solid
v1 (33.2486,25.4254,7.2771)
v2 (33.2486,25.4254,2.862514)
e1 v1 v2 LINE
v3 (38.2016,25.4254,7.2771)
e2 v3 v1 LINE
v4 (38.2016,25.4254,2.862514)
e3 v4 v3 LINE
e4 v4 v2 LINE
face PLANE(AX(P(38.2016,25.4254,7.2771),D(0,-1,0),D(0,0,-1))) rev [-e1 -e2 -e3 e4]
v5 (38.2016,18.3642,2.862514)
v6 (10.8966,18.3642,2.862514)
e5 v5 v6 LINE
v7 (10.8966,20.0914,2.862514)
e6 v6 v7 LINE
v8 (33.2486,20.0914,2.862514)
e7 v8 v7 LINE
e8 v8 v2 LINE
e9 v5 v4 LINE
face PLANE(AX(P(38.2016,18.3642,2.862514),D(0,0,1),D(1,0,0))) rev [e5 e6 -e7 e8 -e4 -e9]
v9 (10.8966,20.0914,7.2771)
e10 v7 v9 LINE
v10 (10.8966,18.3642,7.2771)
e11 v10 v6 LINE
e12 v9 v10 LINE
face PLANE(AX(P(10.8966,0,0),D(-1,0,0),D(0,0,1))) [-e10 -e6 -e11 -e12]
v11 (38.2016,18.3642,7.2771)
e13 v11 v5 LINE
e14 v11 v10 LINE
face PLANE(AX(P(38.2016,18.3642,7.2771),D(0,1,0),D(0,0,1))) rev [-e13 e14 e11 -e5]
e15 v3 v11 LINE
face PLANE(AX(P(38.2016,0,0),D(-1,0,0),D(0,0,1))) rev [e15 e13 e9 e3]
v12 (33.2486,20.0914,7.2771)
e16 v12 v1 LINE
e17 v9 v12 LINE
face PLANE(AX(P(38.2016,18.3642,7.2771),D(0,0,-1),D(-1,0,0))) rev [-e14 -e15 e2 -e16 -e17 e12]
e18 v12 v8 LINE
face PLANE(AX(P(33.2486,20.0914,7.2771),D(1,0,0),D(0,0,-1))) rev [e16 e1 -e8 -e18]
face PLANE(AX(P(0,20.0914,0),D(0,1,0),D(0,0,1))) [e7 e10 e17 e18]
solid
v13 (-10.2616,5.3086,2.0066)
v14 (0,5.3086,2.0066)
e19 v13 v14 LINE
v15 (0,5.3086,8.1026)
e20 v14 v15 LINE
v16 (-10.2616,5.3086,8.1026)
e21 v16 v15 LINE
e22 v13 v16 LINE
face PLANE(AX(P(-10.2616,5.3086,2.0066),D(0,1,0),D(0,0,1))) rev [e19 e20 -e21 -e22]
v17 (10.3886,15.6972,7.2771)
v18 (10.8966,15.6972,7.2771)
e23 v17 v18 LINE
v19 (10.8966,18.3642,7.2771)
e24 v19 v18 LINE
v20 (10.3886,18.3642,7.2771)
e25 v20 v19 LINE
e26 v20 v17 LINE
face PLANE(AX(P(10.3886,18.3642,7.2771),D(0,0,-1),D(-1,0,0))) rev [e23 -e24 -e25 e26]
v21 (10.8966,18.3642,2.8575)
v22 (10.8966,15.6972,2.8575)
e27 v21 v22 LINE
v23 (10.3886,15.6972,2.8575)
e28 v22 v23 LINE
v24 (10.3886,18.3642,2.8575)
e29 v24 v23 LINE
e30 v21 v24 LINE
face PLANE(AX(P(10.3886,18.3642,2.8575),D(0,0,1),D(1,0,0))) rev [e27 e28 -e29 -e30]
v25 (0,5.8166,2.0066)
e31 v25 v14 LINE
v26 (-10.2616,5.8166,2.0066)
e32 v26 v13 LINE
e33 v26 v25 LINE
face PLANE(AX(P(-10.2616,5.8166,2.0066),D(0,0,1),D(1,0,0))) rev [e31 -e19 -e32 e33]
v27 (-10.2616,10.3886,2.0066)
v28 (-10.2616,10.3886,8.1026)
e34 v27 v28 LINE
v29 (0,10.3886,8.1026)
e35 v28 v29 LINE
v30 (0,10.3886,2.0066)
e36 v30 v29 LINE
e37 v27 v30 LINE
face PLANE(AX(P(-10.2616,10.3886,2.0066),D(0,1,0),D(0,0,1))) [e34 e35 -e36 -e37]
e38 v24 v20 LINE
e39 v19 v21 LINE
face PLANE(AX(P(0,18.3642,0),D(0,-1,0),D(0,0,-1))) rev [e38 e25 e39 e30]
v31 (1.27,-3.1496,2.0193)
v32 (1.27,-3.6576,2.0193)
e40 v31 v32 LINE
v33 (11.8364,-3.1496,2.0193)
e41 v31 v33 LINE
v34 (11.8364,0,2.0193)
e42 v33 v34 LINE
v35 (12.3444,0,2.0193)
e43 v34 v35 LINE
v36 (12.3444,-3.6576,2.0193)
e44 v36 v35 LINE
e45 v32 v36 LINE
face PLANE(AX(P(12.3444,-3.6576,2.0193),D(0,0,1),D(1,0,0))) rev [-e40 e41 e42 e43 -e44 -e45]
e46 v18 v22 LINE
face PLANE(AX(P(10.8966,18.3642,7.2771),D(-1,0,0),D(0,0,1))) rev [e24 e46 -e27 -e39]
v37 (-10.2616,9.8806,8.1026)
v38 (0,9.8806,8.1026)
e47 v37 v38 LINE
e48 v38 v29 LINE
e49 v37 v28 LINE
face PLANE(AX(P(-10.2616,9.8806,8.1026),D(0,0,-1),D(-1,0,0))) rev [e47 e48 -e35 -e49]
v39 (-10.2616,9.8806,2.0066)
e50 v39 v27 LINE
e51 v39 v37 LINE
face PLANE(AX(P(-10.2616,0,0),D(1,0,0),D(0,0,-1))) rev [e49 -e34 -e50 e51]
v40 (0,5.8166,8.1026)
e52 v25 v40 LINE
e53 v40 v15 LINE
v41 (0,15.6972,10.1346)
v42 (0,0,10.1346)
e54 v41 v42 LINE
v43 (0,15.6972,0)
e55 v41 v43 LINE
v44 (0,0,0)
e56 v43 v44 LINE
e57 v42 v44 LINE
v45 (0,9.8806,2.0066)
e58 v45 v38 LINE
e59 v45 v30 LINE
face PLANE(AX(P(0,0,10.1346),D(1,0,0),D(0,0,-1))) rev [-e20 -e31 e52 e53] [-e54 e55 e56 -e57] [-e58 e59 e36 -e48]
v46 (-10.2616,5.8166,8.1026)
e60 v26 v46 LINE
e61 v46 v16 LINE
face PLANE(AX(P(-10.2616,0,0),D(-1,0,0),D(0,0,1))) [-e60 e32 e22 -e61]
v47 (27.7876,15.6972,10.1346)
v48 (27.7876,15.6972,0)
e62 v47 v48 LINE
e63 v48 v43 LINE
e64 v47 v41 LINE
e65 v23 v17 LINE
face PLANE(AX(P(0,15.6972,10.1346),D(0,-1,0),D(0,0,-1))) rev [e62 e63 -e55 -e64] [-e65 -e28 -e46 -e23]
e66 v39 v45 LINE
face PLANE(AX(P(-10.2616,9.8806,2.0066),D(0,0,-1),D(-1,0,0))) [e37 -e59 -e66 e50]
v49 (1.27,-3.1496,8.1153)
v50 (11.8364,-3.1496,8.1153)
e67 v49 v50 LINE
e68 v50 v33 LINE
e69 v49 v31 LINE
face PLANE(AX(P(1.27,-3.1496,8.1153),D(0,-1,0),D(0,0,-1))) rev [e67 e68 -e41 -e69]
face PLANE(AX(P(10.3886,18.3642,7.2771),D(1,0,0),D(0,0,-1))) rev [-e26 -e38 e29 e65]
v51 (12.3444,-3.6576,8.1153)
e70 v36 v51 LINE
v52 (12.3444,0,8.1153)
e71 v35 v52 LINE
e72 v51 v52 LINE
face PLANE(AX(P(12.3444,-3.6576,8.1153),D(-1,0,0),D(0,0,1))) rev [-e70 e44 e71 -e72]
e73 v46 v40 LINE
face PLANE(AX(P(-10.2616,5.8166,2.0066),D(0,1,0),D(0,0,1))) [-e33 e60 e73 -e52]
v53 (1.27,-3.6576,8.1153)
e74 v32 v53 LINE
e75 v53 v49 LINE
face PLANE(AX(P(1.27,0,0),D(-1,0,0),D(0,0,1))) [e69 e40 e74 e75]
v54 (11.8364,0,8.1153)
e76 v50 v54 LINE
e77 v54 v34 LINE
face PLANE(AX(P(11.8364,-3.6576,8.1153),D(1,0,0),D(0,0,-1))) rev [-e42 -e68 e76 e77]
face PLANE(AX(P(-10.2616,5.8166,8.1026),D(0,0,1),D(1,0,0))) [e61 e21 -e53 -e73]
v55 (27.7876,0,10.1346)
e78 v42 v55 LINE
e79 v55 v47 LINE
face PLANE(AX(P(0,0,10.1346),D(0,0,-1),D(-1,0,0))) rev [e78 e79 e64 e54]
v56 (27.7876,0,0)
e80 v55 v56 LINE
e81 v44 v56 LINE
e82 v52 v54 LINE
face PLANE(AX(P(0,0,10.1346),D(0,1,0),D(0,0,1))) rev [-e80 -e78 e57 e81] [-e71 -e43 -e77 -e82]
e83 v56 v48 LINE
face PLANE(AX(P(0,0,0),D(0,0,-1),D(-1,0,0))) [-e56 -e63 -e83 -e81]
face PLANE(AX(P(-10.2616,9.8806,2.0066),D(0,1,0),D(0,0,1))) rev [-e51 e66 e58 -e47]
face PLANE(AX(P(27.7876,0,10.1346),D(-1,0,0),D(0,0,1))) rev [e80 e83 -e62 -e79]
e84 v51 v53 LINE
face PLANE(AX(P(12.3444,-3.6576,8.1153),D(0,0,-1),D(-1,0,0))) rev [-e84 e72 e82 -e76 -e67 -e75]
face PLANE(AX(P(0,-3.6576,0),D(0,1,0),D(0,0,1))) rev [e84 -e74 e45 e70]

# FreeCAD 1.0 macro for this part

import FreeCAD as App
import Part
import Sketcher
from FreeCAD import Vector
Q = App.Units.Quantity


def add_polygon(sketch, points):
    """Adds a closed chain of lines whose ends are joined by coincident constraints."""
    first, n = sketch.GeometryCount, len(points)
    for a, b in zip(points, points[1:] + points[:1]):
        sketch.addGeometry(Part.LineSegment(App.Vector(*a, 0), App.Vector(*b, 0)), False)
    for i in range(n):
        sketch.addConstraint(Sketcher.Constraint("Coincident", first + i, 2, first + (i + 1) % n, 1))

doc = App.newDocument("Part")
params = doc.addObject("Spreadsheet::Sheet", "Params")
for row, (alias, value) in enumerate([
    ("sketch1_width", "1.094 in"),
    ("sketch1_height", "0.618 in"),
    ("pad1_length", "0.399 in"),
    ("sketch2_width", "0.02 in"),
    ("sketch2_height", "0.24 in"),
    ("pad2_length", "0.404 in"),
    ("sketch3_width", "0.02 in"),
    ("sketch3_height", "0.174 in"),
    ("pad3_length", "0.105 in"),
    ("sketch4_width", "0.02 in"),
    ("sketch4_height", "0.24 in"),
    ("pad4_length", "0.144 in"),
    ("sketch5_width", "0.02 in"),
    ("sketch5_height", "0.24 in"),
    ("pad5_length", "0.416 in"),
    ("sketch6_width", "0.278 in"),
    ("pad6_length", "1.075 in"),
    ("sketch7_width", "0.88 in"),
    ("pocket1_length", "0.21 in"),
], start=1):
    params.set(f"A{row}", alias)
    params.set(f"B{row}", "=" + value)
    params.setAlias(f"B{row}", alias)

body = doc.addObject("PartDesign::Body", "Body")

sketch1 = body.newObject("Sketcher::SketchObject", "Sketch")
sketch1.AttachmentSupport = (doc.getObject("XY_Plane"), [""])
sketch1.MapMode = "FlatFace"
add_polygon(sketch1, [(0, 16), (0, 0), (28, 0), (28, 16)])
sketch1.addConstraint([
    Sketcher.Constraint("Vertical", 0),
    Sketcher.Constraint("Horizontal", 1),
    Sketcher.Constraint("Vertical", 2),
    Sketcher.Constraint("Horizontal", 3),
    Sketcher.Constraint("Coincident", 0, 2, -1, 1),
    Sketcher.Constraint("DistanceX", 1, 1, 1, 2, Q("1.094 in")),
    Sketcher.Constraint("DistanceY", 0, 2, 0, 1, Q("0.618 in")),
])
sketch1.setExpression("Constraints[9]", "Params.sketch1_width")
sketch1.setExpression("Constraints[10]", "Params.sketch1_height")
pad1 = body.newObject("PartDesign::Pad", "Pad")
pad1.Profile = sketch1
pad1.setExpression("Length", "Params.pad1_length")

sketch2 = body.newObject("Sketcher::SketchObject", "Sketch001")
sketch2.AttachmentSupport = (doc.getObject("YZ_Plane"), [""])
sketch2.MapMode = "FlatFace"
add_polygon(sketch2, [(10.4, 2), (9.9, 2), (9.9, 8.1), (10.4, 8.1)])
add_polygon(sketch2, [(5.8, 2), (5.3, 2), (5.3, 8.1), (5.8, 8.1)])
sketch2.addConstraint([
    Sketcher.Constraint("Horizontal", 0),
    Sketcher.Constraint("Vertical", 1),
    Sketcher.Constraint("Horizontal", 2),
    Sketcher.Constraint("Vertical", 3),
    Sketcher.Constraint("Horizontal", 4),
    Sketcher.Constraint("Vertical", 5),
    Sketcher.Constraint("Horizontal", 6),
    Sketcher.Constraint("Vertical", 7),
    Sketcher.Constraint("Horizontal", 3, 2, 4, 2),
    Sketcher.Constraint("Horizontal", 2, 2, 5, 2),
    Sketcher.Constraint("Equal", 2, 4),
    Sketcher.Constraint("DistanceX", 0, 2, 0, 1, Q("0.02 in")),
    Sketcher.Constraint("DistanceY", 1, 1, 1, 2, Q("0.24 in")),
    Sketcher.Constraint("DistanceX", 4, 2, 3, 2, Q("0.2 in")),
    Sketcher.Constraint("DistanceX", -1, 1, 0, 2, Q("0.389 in")),
    Sketcher.Constraint("DistanceY", -1, 1, 0, 2, Q("0.079 in")),
])
sketch2.setExpression("Constraints[19]", "Params.sketch2_width")
sketch2.setExpression("Constraints[20]", "Params.sketch2_height")
pad2 = body.newObject("PartDesign::Pad", "Pad001")
pad2.Profile = sketch2
pad2.setExpression("Length", "Params.pad2_length")
pad2.Reversed = True

sketch3 = body.newObject("Sketcher::SketchObject", "Sketch002")
sketch3.AttachmentSupport = (doc.getObject("XZ_Plane"), [""])
sketch3.MapMode = "FlatFace"
sketch3.AttachmentOffset = App.Placement(Vector(0, 0, -0.618 * 25.4), App.Rotation())
add_polygon(sketch3, [(10.4, 2.9), (10.4, 7.3), (10.9, 7.3), (10.9, 2.9)])
sketch3.addConstraint([
    Sketcher.Constraint("Vertical", 0),
    Sketcher.Constraint("Horizontal", 1),
    Sketcher.Constraint("Vertical", 2),
    Sketcher.Constraint("Horizontal", 3),
    Sketcher.Constraint("DistanceX", 1, 1, 1, 2, Q("0.02 in")),
    Sketcher.Constraint("DistanceY", 0, 1, 0, 2, Q("0.174 in")),
    Sketcher.Constraint("DistanceX", -1, 1, 0, 2, Q("0.409 in")),
    Sketcher.Constraint("DistanceY", -1, 1, 0, 2, Q("0.2865 in")),
])
sketch3.setExpression("Constraints[8]", "Params.sketch3_width")
sketch3.setExpression("Constraints[9]", "Params.sketch3_height")
pad3 = body.newObject("PartDesign::Pad", "Pad002")
pad3.Profile = sketch3
pad3.setExpression("Length", "Params.pad3_length")
pad3.Reversed = True

sketch4 = body.newObject("Sketcher::SketchObject", "Sketch003")
sketch4.AttachmentSupport = (doc.getObject("XZ_Plane"), [""])
sketch4.MapMode = "FlatFace"
add_polygon(sketch4, [(11.8, 8.1), (11.8, 2), (12.3, 2), (12.3, 8.1)])
sketch4.addConstraint([
    Sketcher.Constraint("Vertical", 0),
    Sketcher.Constraint("Horizontal", 1),
    Sketcher.Constraint("Vertical", 2),
    Sketcher.Constraint("Horizontal", 3),
    Sketcher.Constraint("DistanceX", 1, 1, 1, 2, Q("0.02 in")),
    Sketcher.Constraint("DistanceY", 0, 2, 0, 1, Q("0.24 in")),
    Sketcher.Constraint("DistanceX", -1, 1, 0, 2, Q("0.466 in")),
    Sketcher.Constraint("DistanceY", -1, 1, 0, 2, Q("0.0795 in")),
])
sketch4.setExpression("Constraints[8]", "Params.sketch4_width")
sketch4.setExpression("Constraints[9]", "Params.sketch4_height")
pad4 = body.newObject("PartDesign::Pad", "Pad003")
pad4.Profile = sketch4
pad4.setExpression("Length", "Params.pad4_length")

sketch5 = body.newObject("Sketcher::SketchObject", "Sketch004")
sketch5.AttachmentSupport = (doc.getObject("YZ_Plane"), [""])
sketch5.MapMode = "FlatFace"
sketch5.AttachmentOffset = App.Placement(Vector(0, 0, 0.466 * 25.4), App.Rotation())
add_polygon(sketch5, [(-3.1, 2), (-3.7, 2), (-3.7, 8.1), (-3.1, 8.1)])
sketch5.addConstraint([
    Sketcher.Constraint("Horizontal", 0),
    Sketcher.Constraint("Vertical", 1),
    Sketcher.Constraint("Horizontal", 2),
    Sketcher.Constraint("Vertical", 3),
    Sketcher.Constraint("DistanceX", 0, 2, 0, 1, Q("0.02 in")),
    Sketcher.Constraint("DistanceY", 1, 1, 1, 2, Q("0.24 in")),
    Sketcher.Constraint("DistanceX", 0, 2, -1, 1, Q("0.144 in")),
    Sketcher.Constraint("DistanceY", -1, 1, 0, 2, Q("0.0795 in")),
])
sketch5.setExpression("Constraints[8]", "Params.sketch5_width")
sketch5.setExpression("Constraints[9]", "Params.sketch5_height")
pad5 = body.newObject("PartDesign::Pad", "Pad004")
pad5.Profile = sketch5
pad5.setExpression("Length", "Params.pad5_length")
pad5.Reversed = True
body2 = doc.addObject("PartDesign::Body", "Body001")

sketch6 = body2.newObject("Sketcher::SketchObject", "Sketch005")
sketch6.AttachmentSupport = (doc.getObject("YZ_Plane001"), [""])
sketch6.MapMode = "FlatFace"
sketch6.AttachmentOffset = App.Placement(Vector(0, 0, 0.429 * 25.4), App.Rotation())
add_polygon(sketch6, [(25.4, 7.3), (18.4, 7.3), (18.4, 2.9), (25.4, 2.9)])
sketch6.addConstraint([
    Sketcher.Constraint("Horizontal", 0),
    Sketcher.Constraint("Vertical", 1),
    Sketcher.Constraint("Horizontal", 2),
    Sketcher.Constraint("Vertical", 3),
    Sketcher.Constraint("DistanceX", 0, 2, 0, 1, Q("0.278 in")),
    Sketcher.Constraint("DistanceX", -1, 1, 0, 2, Q("0.723 in")),
    Sketcher.Constraint("DistanceY", -1, 1, 0, 2, Q("0.2865 in")),
    Sketcher.Constraint("DistanceY", 1, 2, 1, 1, 4.414586),
])
sketch6.setExpression("Constraints[8]", "Params.sketch6_width")
pad6 = body2.newObject("PartDesign::Pad", "Pad005")
pad6.Profile = sketch6
pad6.setExpression("Length", "Params.pad6_length")

sketch7 = body2.newObject("Sketcher::SketchObject", "Sketch006")
sketch7.AttachmentSupport = (doc.getObject("XZ_Plane001"), [""])
sketch7.MapMode = "FlatFace"
sketch7.AttachmentOffset = App.Placement(Vector(0, 0, -1.001 * 25.4), App.Rotation())
add_polygon(sketch7, [(10.9, 2.9), (10.9, 7.3), (33.2, 7.3), (33.2, 2.9)])
sketch7.addConstraint([
    Sketcher.Constraint("Vertical", 0),
    Sketcher.Constraint("Horizontal", 1),
    Sketcher.Constraint("Vertical", 2),
    Sketcher.Constraint("Horizontal", 3),
    Sketcher.Constraint("DistanceX", 1, 1, 1, 2, Q("0.88 in")),
    Sketcher.Constraint("DistanceX", -1, 1, 0, 2, Q("0.429 in")),
    Sketcher.Constraint("DistanceY", -1, 1, 0, 2, Q("0.2865 in")),
    Sketcher.Constraint("DistanceY", 0, 1, 0, 2, 4.414586),
])
sketch7.setExpression("Constraints[8]", "Params.sketch7_width")
pocket1 = body2.newObject("PartDesign::Pocket", "Pocket")
pocket1.Profile = sketch7
pocket1.setExpression("Length", "Params.pocket1_length")
pocket1.Reversed = True

doc.recompute()
